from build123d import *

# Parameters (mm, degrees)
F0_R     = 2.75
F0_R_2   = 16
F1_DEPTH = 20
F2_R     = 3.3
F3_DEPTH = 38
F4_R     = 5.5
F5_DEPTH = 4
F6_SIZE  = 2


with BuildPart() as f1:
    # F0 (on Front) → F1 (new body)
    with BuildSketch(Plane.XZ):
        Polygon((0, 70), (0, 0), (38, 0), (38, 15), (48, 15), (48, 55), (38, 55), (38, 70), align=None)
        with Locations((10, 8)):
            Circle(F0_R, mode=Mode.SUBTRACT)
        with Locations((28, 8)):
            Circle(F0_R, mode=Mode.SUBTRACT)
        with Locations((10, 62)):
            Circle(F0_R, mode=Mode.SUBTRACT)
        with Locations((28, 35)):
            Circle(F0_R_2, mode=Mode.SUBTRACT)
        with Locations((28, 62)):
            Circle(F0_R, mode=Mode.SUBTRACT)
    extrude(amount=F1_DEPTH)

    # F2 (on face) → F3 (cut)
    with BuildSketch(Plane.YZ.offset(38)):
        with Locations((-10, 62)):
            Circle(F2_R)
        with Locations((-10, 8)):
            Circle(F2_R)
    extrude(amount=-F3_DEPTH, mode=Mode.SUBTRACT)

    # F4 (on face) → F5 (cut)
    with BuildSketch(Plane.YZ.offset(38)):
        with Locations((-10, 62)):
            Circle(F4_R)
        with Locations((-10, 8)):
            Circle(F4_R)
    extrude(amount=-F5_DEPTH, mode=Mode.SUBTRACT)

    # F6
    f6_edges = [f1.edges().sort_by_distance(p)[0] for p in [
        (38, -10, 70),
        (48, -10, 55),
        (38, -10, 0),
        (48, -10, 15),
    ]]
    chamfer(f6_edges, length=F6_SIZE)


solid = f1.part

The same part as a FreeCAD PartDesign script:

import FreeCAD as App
import Part
import Sketcher
from FreeCAD import Vector
Q = App.Units.Quantity


def edges_at(feature, points):
    """Names of the edges that pass closest to the given points."""
    edges = feature.Shape.Edges
    near = lambda p: min(range(len(edges)), key=lambda i: edges[i].distToShape(Part.Vertex(*p))[0])
    return sorted({f"Edge{near(p) + 1}" for p in points})

doc = App.newDocument("Part")
body = doc.addObject("PartDesign::Body", "Body")

# Sketch on XZ plane
sketch1 = doc.addObject("Sketcher::SketchObject", "Sketch")
body.addObject(sketch1)
sketch1.AttachmentSupport = (doc.XZ_Plane, [""])
sketch1.MapMode = "FlatFace"
sketch1.addGeometry([
    Part.LineSegment(Vector(0, 70, 0), Vector(0, 0, 0)),  # 0
    Part.LineSegment(Vector(0, 0, 0), Vector(38, 0, 0)),  # 1
    Part.LineSegment(Vector(38, 0, 0), Vector(38, 15, 0)),  # 2
    Part.LineSegment(Vector(38, 15, 0), Vector(48, 15, 0)),  # 3
    Part.LineSegment(Vector(48, 15, 0), Vector(48, 55, 0)),  # 4
    Part.LineSegment(Vector(48, 55, 0), Vector(38, 55, 0)),  # 5
    Part.LineSegment(Vector(38, 55, 0), Vector(38, 70, 0)),  # 6
    Part.LineSegment(Vector(38, 70, 0), Vector(0, 70, 0)),  # 7
    Part.Circle(Vector(10, 8, 0), Vector(0, 0, 1), 2.8),  # 8
    Part.Circle(Vector(28, 8, 0), Vector(0, 0, 1), 2.8),  # 9
    Part.Circle(Vector(10, 62, 0), Vector(0, 0, 1), 2.8),  # 10
    Part.Circle(Vector(28, 35, 0), Vector(0, 0, 1), 16),  # 11
    Part.Circle(Vector(28, 62, 0), Vector(0, 0, 1), 2.8),  # 12
], False)
sketch1.addConstraint([
    Sketcher.Constraint("Coincident", 0, 2, 1, 1),
    Sketcher.Constraint("Coincident", 1, 2, 2, 1),
    Sketcher.Constraint("Coincident", 2, 2, 3, 1),
    Sketcher.Constraint("Coincident", 3, 2, 4, 1),
    Sketcher.Constraint("Coincident", 4, 2, 5, 1),
    Sketcher.Constraint("Coincident", 5, 2, 6, 1),
    Sketcher.Constraint("Coincident", 6, 2, 7, 1),
    Sketcher.Constraint("Coincident", 7, 2, 0, 1),
    Sketcher.Constraint("Vertical", 0),
    Sketcher.Constraint("Horizontal", 1),
    Sketcher.Constraint("Vertical", 2),
    Sketcher.Constraint("Horizontal", 3),
    Sketcher.Constraint("Vertical", 4),
    Sketcher.Constraint("Horizontal", 5),
    Sketcher.Constraint("Vertical", 6),
    Sketcher.Constraint("Horizontal", 7),
    Sketcher.Constraint("Coincident", 0, 2, -1, 1),
    Sketcher.Constraint("Equal", 8, 9),
    Sketcher.Constraint("Equal", 9, 10),
    Sketcher.Constraint("Equal", 10, 12),
    Sketcher.Constraint("Horizontal", 8, 3, 9, 3),
    Sketcher.Constraint("Horizontal", 10, 3, 12, 3),
    Sketcher.Constraint("Vertical", 8, 3, 10, 3),
    Sketcher.Constraint("Vertical", 9, 3, 11, 3),
    Sketcher.Constraint("Vertical", 11, 3, 12, 3),
    Sketcher.Constraint("Vertical", 2, 2, 5, 2),
    Sketcher.Constraint("Equal", 2, 6),
    Sketcher.Constraint("Diameter", 11, Q("32 mm")),
    Sketcher.Constraint("Diameter", 8, Q("5.5 mm")),
    Sketcher.Constraint("DistanceX", 1, 1, 1, 2, Q("38 mm")),
    Sketcher.Constraint("DistanceX", 3, 1, 3, 2, Q("10 mm")),
    Sketcher.Constraint("DistanceY", 0, 2, 0, 1, Q("70 mm")),
    Sketcher.Constraint("DistanceY", 2, 1, 2, 2, Q("15 mm")),
    Sketcher.Constraint("DistanceX", -1, 1, 8, 3, Q("10 mm")),
    Sketcher.Constraint("DistanceY", -1, 1, 8, 3, Q("8 mm")),
    Sketcher.Constraint("DistanceX", -1, 1, 9, 3, Q("28 mm")),
    Sketcher.Constraint("DistanceY", -1, 1, 10, 3, Q("62 mm")),
    Sketcher.Constraint("DistanceY", -1, 1, 11, 3, Q("35 mm")),
])
pad1 = doc.addObject("PartDesign::Pad", "Pad")
body.addObject(pad1)
pad1.Profile = sketch1
pad1.Length = 20

# Sketch on YZ plane
sketch2 = doc.addObject("Sketcher::SketchObject", "Sketch001")
body.addObject(sketch2)
sketch2.AttachmentSupport = (doc.YZ_Plane, [""])
sketch2.MapMode = "FlatFace"
sketch2.AttachmentOffset = App.Placement(Vector(0, 0, 38), App.Rotation())
sketch2.addGeometry([
    Part.Circle(Vector(-10, 62, 0), Vector(0, 0, 1), 3.3),
    Part.Circle(Vector(-10, 8, 0), Vector(0, 0, 1), 3.3),
], False)
sketch2.addConstraint([
    Sketcher.Constraint("Equal", 0, 1),
    Sketcher.Constraint("Vertical", 0, 3, 1, 3),
    Sketcher.Constraint("Diameter", 0, Q("6.6 mm")),
    Sketcher.Constraint("DistanceX", 0, 3, -1, 1, Q("10 mm")),
    Sketcher.Constraint("DistanceY", -1, 1, 0, 3, Q("62 mm")),
    Sketcher.Constraint("DistanceY", -1, 1, 1, 3, Q("8 mm")),
])
pocket1 = doc.addObject("PartDesign::Pocket", "Pocket")
body.addObject(pocket1)
pocket1.Profile = sketch2
pocket1.Length = 38

# Sketch on YZ plane
sketch3 = doc.addObject("Sketcher::SketchObject", "Sketch002")
body.addObject(sketch3)
sketch3.AttachmentSupport = (doc.YZ_Plane, [""])
sketch3.MapMode = "FlatFace"
sketch3.AttachmentOffset = App.Placement(Vector(0, 0, 38), App.Rotation())
sketch3.addGeometry([
    Part.Circle(Vector(-10, 62, 0), Vector(0, 0, 1), 6),
    Part.Circle(Vector(-10, 8, 0), Vector(0, 0, 1), 6),
], False)
sketch3.addConstraint([
    Sketcher.Constraint("Equal", 0, 1),
    Sketcher.Constraint("Vertical", 0, 3, 1, 3),
    Sketcher.Constraint("Diameter", 0, Q("11 mm")),
    Sketcher.Constraint("DistanceX", 0, 3, -1, 1, Q("10 mm")),
    Sketcher.Constraint("DistanceY", -1, 1, 0, 3, Q("62 mm")),
    Sketcher.Constraint("DistanceY", -1, 1, 1, 3, Q("8 mm")),
])
pocket2 = doc.addObject("PartDesign::Pocket", "Pocket001")
body.addObject(pocket2)
pocket2.Profile = sketch3
pocket2.Length = 4
doc.recompute()

chamfer = doc.addObject("PartDesign::Chamfer", "Chamfer")
body.addObject(chamfer)
chamfer.Base = (pocket2, edges_at(pocket2, [
    (38, -10, 70),
    (48, -10, 55),
    (38, -10, 0),
    (48, -10, 15),
]))
chamfer.Size = 2

doc.recompute()
